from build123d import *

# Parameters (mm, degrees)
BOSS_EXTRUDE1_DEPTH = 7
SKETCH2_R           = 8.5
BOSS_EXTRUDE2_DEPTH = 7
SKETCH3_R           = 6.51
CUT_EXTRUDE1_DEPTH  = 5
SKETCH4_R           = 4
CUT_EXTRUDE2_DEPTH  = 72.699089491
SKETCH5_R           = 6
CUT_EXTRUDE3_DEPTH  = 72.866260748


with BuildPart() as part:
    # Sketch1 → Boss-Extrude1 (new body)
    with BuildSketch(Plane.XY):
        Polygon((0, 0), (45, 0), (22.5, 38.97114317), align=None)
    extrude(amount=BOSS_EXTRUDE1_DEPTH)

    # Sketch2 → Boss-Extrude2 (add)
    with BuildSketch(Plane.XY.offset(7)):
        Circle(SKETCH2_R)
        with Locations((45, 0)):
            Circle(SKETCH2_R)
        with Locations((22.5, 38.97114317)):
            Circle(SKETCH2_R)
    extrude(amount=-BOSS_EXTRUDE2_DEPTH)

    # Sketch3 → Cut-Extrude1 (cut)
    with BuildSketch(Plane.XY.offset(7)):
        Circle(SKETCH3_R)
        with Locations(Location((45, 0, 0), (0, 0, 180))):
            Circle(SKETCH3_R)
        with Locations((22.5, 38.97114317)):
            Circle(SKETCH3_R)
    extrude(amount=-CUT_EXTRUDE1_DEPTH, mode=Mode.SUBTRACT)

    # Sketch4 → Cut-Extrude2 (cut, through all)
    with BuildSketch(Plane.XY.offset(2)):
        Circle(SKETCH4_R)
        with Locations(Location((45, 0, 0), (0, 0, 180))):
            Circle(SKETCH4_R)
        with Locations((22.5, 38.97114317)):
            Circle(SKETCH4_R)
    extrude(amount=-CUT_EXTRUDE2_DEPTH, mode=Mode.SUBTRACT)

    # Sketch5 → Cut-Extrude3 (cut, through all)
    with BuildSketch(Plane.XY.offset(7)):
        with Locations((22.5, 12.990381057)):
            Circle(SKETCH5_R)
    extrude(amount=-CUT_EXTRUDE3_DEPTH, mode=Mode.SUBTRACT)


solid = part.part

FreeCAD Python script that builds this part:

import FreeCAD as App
import Part
import Sketcher
Q = App.Units.Quantity


def add_polygon(sketch, points):
    """Adds a closed chain of lines whose ends are joined by coincident constraints."""
    first, n = sketch.GeometryCount, len(points)
    for a, b in zip(points, points[1:] + points[:1]):
        sketch.addGeometry(Part.LineSegment(App.Vector(*a, 0), App.Vector(*b, 0)), False)
    for i in range(n):
        sketch.addConstraint(Sketcher.Constraint("Coincident", first + i, 2, first + (i + 1) % n, 1))

doc = App.newDocument("Part")
body = doc.addObject("PartDesign::Body", "Body")

# Sketch on XY plane
sketch1 = body.newObject("Sketcher::SketchObject", "Sketch")
sketch1.AttachmentSupport = (doc.getObject("XY_Plane"), [""])
sketch1.MapMode = "FlatFace"
add_polygon(sketch1, [(0, 0), (45, 0), (22, 39)])  # lines 0-2
sketch1.addConstraint(Sketcher.Constraint("Horizontal", 0))
sketch1.addConstraint(Sketcher.Constraint("Coincident", 2, 2, -1, 1))
sketch1.addConstraint(Sketcher.Constraint("Equal", 1, 2))
sketch1.addConstraint(Sketcher.Constraint("DistanceX", 0, 1, 0, 2, 45.0))
sketch1.addConstraint(Sketcher.Constraint("Angle", 1, Q("120 deg")))
pad1 = body.newObject("PartDesign::Pad", "Pad")
pad1.Profile = sketch1
pad1.Length = 7

# Sketch on XY plane
sketch2 = body.newObject("Sketcher::SketchObject", "Sketch001")
sketch2.AttachmentSupport = (doc.getObject("XY_Plane"), [""])
sketch2.MapMode = "FlatFace"
sketch2.AttachmentOffset = App.Placement(App.Vector(0, 0, 7), App.Rotation())
sketch2.addGeometry(Part.Circle(App.Vector(0, 0, 0), App.Vector(0, 0, 1), 8), False)
sketch2.addGeometry(Part.Circle(App.Vector(45, 0, 0), App.Vector(0, 0, 1), 8), False)
sketch2.addGeometry(Part.Circle(App.Vector(22, 39, 0), App.Vector(0, 0, 1), 8), False)
sketch2.addConstraint(Sketcher.Constraint("Coincident", 0, 3, -1, 1))
sketch2.addConstraint(Sketcher.Constraint("Equal", 0, 1))
sketch2.addConstraint(Sketcher.Constraint("Equal", 1, 2))
sketch2.addConstraint(Sketcher.Constraint("PointOnObject", 1, 3, -1))
sketch2.addConstraint(Sketcher.Constraint("Diameter", 0, 17.0))
sketch2.addConstraint(Sketcher.Constraint("DistanceX", -1, 1, 1, 3, 45.0))
sketch2.addConstraint(Sketcher.Constraint("DistanceX", -1, 1, 2, 3, 22.5))
sketch2.addConstraint(Sketcher.Constraint("DistanceY", -1, 1, 2, 3, 38.971143))
pad2 = body.newObject("PartDesign::Pad", "Pad001")
pad2.Profile = sketch2
pad2.Length = 7
pad2.Reversed = True

# Sketch on XY plane
sketch3 = body.newObject("Sketcher::SketchObject", "Sketch002")
sketch3.AttachmentSupport = (doc.getObject("XY_Plane"), [""])
sketch3.MapMode = "FlatFace"
sketch3.AttachmentOffset = App.Placement(App.Vector(0, 0, 7), App.Rotation())
sketch3.addGeometry(Part.Circle(App.Vector(0, 0, 0), App.Vector(0, 0, 1), 7), False)
sketch3.addGeometry(Part.Circle(App.Vector(45, 0, 0), App.Vector(0, 0, 1), 7), False)
sketch3.addGeometry(Part.Circle(App.Vector(22, 39, 0), App.Vector(0, 0, 1), 7), False)
sketch3.addConstraint(Sketcher.Constraint("Coincident", 0, 3, -1, 1))
sketch3.addConstraint(Sketcher.Constraint("Equal", 0, 1))
sketch3.addConstraint(Sketcher.Constraint("Equal", 1, 2))
sketch3.addConstraint(Sketcher.Constraint("PointOnObject", 1, 3, -1))
sketch3.addConstraint(Sketcher.Constraint("Diameter", 0, 13.02))
sketch3.addConstraint(Sketcher.Constraint("DistanceX", -1, 1, 1, 3, 45.0))
sketch3.addConstraint(Sketcher.Constraint("DistanceX", -1, 1, 2, 3, 22.5))
sketch3.addConstraint(Sketcher.Constraint("DistanceY", -1, 1, 2, 3, 38.971143))
pocket1 = body.newObject("PartDesign::Pocket", "Pocket")
pocket1.Profile = sketch3
pocket1.Length = 5

# Sketch on XY plane
sketch4 = body.newObject("Sketcher::SketchObject", "Sketch003")
sketch4.AttachmentSupport = (doc.getObject("XY_Plane"), [""])
sketch4.MapMode = "FlatFace"
sketch4.AttachmentOffset = App.Placement(App.Vector(0, 0, 2), App.Rotation())
sketch4.addGeometry(Part.Circle(App.Vector(0, 0, 0), App.Vector(0, 0, 1), 4), False)
sketch4.addGeometry(Part.Circle(App.Vector(45, 0, 0), App.Vector(0, 0, 1), 4), False)
sketch4.addGeometry(Part.Circle(App.Vector(22.5, 39, 0), App.Vector(0, 0, 1), 4), False)
sketch4.addConstraint(Sketcher.Constraint("Coincident", 0, 3, -1, 1))
sketch4.addConstraint(Sketcher.Constraint("Equal", 0, 1))
sketch4.addConstraint(Sketcher.Constraint("Equal", 1, 2))
sketch4.addConstraint(Sketcher.Constraint("PointOnObject", 1, 3, -1))
sketch4.addConstraint(Sketcher.Constraint("Diameter", 0, 8.0))
sketch4.addConstraint(Sketcher.Constraint("DistanceX", -1, 1, 1, 3, 45.0))
sketch4.addConstraint(Sketcher.Constraint("DistanceX", -1, 1, 2, 3, 22.5))
sketch4.addConstraint(Sketcher.Constraint("DistanceY", -1, 1, 2, 3, 38.971143))
pocket2 = body.newObject("PartDesign::Pocket", "Pocket001")
pocket2.Profile = sketch4
pocket2.Type = "ThroughAll"

# Sketch on XY plane
sketch5 = body.newObject("Sketcher::SketchObject", "Sketch004")
sketch5.AttachmentSupport = (doc.getObject("XY_Plane"), [""])
sketch5.MapMode = "FlatFace"
sketch5.AttachmentOffset = App.Placement(App.Vector(0, 0, 7), App.Rotation())
sketch5.addGeometry(Part.Circle(App.Vector(22, 13, 0), App.Vector(0, 0, 1), 6), False)
sketch5.addConstraint(Sketcher.Constraint("Diameter", 0, 12.0))
sketch5.addConstraint(Sketcher.Constraint("DistanceX", -1, 1, 0, 3, 22.5))
sketch5.addConstraint(Sketcher.Constraint("DistanceY", -1, 1, 0, 3, 12.990381))
pocket3 = body.newObject("PartDesign::Pocket", "Pocket002")
pocket3.Profile = sketch5
pocket3.Type = "ThroughAll"

doc.recompute()
